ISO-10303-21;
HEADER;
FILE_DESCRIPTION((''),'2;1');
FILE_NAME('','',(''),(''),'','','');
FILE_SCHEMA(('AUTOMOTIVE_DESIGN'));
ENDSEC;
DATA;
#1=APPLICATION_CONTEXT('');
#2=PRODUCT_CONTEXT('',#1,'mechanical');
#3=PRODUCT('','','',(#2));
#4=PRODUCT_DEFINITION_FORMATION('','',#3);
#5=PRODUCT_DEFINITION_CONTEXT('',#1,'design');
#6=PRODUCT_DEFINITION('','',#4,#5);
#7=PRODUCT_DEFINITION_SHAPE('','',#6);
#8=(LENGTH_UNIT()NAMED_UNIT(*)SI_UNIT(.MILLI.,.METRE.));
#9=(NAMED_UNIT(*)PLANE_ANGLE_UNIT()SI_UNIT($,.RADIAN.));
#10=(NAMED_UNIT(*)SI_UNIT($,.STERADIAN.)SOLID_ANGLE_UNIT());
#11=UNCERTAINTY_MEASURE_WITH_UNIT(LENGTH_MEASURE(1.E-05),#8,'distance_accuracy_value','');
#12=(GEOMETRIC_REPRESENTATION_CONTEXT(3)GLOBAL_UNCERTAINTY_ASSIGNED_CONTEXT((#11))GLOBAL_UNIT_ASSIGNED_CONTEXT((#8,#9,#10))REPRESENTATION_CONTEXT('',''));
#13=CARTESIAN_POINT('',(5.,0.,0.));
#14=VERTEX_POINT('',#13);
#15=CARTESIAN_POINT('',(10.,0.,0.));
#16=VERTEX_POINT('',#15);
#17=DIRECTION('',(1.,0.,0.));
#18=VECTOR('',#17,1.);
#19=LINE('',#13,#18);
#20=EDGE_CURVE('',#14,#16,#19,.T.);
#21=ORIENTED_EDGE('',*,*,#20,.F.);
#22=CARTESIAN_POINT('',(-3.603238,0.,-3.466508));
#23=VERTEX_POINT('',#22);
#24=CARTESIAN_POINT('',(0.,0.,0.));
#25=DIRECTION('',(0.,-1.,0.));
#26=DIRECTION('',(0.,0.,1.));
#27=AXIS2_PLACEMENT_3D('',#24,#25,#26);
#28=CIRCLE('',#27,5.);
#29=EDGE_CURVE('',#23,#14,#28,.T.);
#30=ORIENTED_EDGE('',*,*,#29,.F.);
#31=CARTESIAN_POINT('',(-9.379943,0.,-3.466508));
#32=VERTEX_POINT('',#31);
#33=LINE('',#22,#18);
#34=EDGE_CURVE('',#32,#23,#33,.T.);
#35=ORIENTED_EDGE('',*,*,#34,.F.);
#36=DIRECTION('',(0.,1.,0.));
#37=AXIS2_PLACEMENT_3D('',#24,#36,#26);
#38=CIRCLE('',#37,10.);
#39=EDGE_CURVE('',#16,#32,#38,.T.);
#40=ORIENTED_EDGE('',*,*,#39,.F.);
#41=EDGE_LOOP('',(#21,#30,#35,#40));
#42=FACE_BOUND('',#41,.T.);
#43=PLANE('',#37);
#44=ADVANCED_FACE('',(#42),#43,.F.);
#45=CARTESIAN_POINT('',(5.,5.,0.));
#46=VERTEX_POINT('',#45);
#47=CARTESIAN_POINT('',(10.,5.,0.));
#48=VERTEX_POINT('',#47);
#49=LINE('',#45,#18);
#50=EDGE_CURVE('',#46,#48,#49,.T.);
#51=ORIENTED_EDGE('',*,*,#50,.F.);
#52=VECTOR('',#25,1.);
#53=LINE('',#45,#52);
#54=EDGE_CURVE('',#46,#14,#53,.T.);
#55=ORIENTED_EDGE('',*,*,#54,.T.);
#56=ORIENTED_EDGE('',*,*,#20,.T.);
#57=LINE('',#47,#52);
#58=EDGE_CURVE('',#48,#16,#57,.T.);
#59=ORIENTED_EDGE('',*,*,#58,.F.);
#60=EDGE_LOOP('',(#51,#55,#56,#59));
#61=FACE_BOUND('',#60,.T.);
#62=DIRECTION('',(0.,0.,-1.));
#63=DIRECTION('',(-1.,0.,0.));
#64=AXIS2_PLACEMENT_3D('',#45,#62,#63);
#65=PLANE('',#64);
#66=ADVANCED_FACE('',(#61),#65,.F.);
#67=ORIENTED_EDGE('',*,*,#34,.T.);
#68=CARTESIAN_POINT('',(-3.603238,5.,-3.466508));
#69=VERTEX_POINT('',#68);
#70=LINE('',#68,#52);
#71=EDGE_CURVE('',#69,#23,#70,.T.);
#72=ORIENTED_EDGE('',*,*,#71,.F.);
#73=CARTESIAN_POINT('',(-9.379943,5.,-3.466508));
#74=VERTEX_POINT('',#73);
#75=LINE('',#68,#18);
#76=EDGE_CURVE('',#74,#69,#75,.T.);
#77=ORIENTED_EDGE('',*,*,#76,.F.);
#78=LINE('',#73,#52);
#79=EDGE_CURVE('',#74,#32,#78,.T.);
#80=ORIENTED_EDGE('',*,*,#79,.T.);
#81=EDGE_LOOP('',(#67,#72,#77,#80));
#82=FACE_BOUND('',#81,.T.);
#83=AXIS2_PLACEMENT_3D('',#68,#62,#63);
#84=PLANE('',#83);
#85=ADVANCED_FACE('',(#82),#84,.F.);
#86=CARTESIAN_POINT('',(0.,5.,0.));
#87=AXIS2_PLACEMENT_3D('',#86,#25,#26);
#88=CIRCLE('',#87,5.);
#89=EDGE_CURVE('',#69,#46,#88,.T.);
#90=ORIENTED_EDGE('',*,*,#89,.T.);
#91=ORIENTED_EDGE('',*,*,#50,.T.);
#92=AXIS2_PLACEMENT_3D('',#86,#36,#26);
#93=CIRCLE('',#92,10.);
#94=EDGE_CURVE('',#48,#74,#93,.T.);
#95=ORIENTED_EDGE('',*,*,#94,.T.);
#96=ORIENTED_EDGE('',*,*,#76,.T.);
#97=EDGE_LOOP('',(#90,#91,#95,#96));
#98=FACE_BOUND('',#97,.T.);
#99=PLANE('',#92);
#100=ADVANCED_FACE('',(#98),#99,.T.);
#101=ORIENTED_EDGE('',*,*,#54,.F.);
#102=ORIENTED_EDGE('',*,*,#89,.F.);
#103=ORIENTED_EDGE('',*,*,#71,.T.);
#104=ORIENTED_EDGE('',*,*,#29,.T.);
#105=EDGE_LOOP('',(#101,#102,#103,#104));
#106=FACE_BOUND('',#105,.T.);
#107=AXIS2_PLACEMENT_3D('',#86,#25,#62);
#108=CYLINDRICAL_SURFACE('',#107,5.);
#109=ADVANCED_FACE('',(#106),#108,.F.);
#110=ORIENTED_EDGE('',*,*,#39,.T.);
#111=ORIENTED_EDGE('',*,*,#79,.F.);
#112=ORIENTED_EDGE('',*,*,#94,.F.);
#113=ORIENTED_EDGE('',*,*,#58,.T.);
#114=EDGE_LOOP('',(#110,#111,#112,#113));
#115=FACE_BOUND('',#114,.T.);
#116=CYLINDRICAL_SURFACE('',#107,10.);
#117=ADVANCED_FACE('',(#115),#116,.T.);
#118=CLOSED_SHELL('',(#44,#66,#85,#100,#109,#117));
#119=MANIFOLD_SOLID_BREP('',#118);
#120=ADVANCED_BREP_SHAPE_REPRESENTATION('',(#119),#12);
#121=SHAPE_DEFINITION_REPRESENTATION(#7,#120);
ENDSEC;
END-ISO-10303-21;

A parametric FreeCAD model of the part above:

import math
import FreeCAD as App
import Part
import Sketcher

V = App.Vector
Q = App.Units.Quantity

doc = App.newDocument("Part")
body = doc.addObject("PartDesign::Body", "Body")

sketch1 = body.newObject("Sketcher::SketchObject", "Sketch")
sketch1.AttachmentSupport = (doc.getObject("XZ_Plane"), [""])
sketch1.MapMode = "FlatFace"
sketch1.addGeometry([
    Part.LineSegment(V(5, 0, 0), V(10, 0, 0)),
    Part.ArcOfCircle(Part.Circle(V(0, 0, 0), V(0, 0, 1), 10), math.radians(-159.717401), math.radians(0)),
    Part.LineSegment(V(-9.379943, -3.466508, 0), V(-3.603238, -3.466508, 0)),
    Part.ArcOfCircle(Part.Circle(V(0, 0, 0), V(0, 0, 1), 5), math.radians(-136.107971), math.radians(0)),
], False)
sketch1.addConstraint([
    Sketcher.Constraint("Coincident", 0, 2, 1, 2),
    Sketcher.Constraint("Coincident", 1, 1, 2, 1),
    Sketcher.Constraint("Coincident", 2, 2, 3, 1),
    Sketcher.Constraint("Coincident", 3, 2, 0, 1),
    Sketcher.Constraint("Horizontal", 0),
    Sketcher.Constraint("Horizontal", 2),
    Sketcher.Constraint("Coincident", 1, 3, -1, 1),
    Sketcher.Constraint("Coincident", 3, 3, -1, 1),
    Sketcher.Constraint("PointOnObject", 0, 2, -1),
    Sketcher.Constraint("Radius", 1, Q("10 mm")),
    Sketcher.Constraint("Radius", 3, Q("5 mm")),
    Sketcher.Constraint("DistanceX", 2, 1, 2, 2, Q("5.776705 mm")),
])
pad1 = body.newObject("PartDesign::Pad", "Pad")
pad1.Profile = sketch1
pad1.Length = 5
pad1.Reversed = True

doc.recompute()
